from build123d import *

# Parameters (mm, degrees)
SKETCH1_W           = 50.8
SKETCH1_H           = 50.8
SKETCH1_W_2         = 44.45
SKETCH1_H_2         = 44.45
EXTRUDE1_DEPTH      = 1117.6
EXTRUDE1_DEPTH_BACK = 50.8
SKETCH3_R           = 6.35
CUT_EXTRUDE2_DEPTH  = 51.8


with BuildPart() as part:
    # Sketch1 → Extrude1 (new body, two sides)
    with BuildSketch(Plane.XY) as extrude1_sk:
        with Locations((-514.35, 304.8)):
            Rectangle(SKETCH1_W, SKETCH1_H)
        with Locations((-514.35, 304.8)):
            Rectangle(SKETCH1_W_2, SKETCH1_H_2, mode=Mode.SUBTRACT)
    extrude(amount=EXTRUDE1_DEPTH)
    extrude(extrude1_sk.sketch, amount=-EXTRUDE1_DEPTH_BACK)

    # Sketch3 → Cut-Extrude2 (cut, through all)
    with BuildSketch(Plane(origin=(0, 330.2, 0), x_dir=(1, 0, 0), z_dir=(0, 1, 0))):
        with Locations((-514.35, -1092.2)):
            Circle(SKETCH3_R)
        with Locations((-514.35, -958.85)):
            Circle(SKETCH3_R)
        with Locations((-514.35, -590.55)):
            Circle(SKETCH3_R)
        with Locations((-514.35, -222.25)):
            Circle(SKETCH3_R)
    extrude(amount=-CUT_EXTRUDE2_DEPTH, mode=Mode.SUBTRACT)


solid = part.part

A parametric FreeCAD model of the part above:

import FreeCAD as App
import Part
import Sketcher

V = App.Vector
Q = App.Units.Quantity


def add_polygon(sketch, points):
    """Adds a closed chain of lines whose ends are joined by coincident constraints."""
    first, n = sketch.GeometryCount, len(points)
    for a, b in zip(points, points[1:] + points[:1]):
        sketch.addGeometry(Part.LineSegment(App.Vector(*a, 0), App.Vector(*b, 0)), False)
    for i in range(n):
        sketch.addConstraint(Sketcher.Constraint("Coincident", first + i, 2, first + (i + 1) % n, 1))

doc = App.newDocument("Part")
body = doc.addObject("PartDesign::Body", "Body")

# Sketch on XY plane
sketch1 = doc.addObject("Sketcher::SketchObject", "Sketch")
body.addObject(sketch1)
sketch1.AttachmentSupport = (doc.XY_Plane, [""])
sketch1.MapMode = "FlatFace"
add_polygon(sketch1, [(-539.75, 330.2), (-539.75, 279.4), (-488.95, 279.4), (-488.95, 330.2)])  # lines 0-3
add_polygon(sketch1, [(-492.125, 282.575), (-536.575, 282.575), (-536.575, 327.025), (-492.125, 327.025)])  # lines 4-7
sketch1.addConstraint([
    Sketcher.Constraint("Vertical", 0),
    Sketcher.Constraint("Horizontal", 1),
    Sketcher.Constraint("Vertical", 2),
    Sketcher.Constraint("Horizontal", 3),
    Sketcher.Constraint("Horizontal", 4),
    Sketcher.Constraint("Vertical", 5),
    Sketcher.Constraint("Horizontal", 6),
    Sketcher.Constraint("Vertical", 7),
    Sketcher.Constraint("Equal", 3, 0),
    Sketcher.Constraint("Equal", 6, 5),
    Sketcher.Constraint("DistanceX", 1, 1, 1, 2, Q("2 in")),
    Sketcher.Constraint("DistanceY", -1, 1, 0, 2, Q("11 in")),
    Sketcher.Constraint("DistanceX", 4, 2, 4, 1, Q("1.75 in")),
    Sketcher.Constraint("DistanceX", 0, 2, -1, 1, Q("21.25 in")),
    Sketcher.Constraint("DistanceX", 4, 2, -1, 1, Q("21.125 in")),
    Sketcher.Constraint("DistanceY", -1, 1, 4, 2, Q("11.125 in")),
])
pad1 = doc.addObject("PartDesign::Pad", "Pad")
body.addObject(pad1)
pad1.Profile = sketch1
pad1.Type = "TwoLengths"
pad1.Length = Q("44 in")
pad1.Length2 = Q("2 in")

# Sketch on XZ plane
sketch2 = doc.addObject("Sketcher::SketchObject", "Sketch001")
body.addObject(sketch2)
sketch2.AttachmentSupport = (doc.XZ_Plane, [""])
sketch2.MapMode = "FlatFace"
sketch2.AttachmentOffset = App.Placement(V(0, 0, -13 * 25.4), App.Rotation())
sketch2.addGeometry([
    Part.Circle(V(-514.35, 1092.2, 0), V(0, 0, 1), 6.35),
    Part.Circle(V(-514.35, 958.85, 0), V(0, 0, 1), 6.35),
    Part.Circle(V(-514.35, 590.55, 0), V(0, 0, 1), 6.35),
    Part.Circle(V(-514.35, 222.25, 0), V(0, 0, 1), 6.35),
], False)
sketch2.addConstraint([
    Sketcher.Constraint("Equal", 0, 1),
    Sketcher.Constraint("Equal", 1, 2),
    Sketcher.Constraint("Equal", 2, 3),
    Sketcher.Constraint("Vertical", 0, 3, 1, 3),
    Sketcher.Constraint("Vertical", 1, 3, 2, 3),
    Sketcher.Constraint("Vertical", 2, 3, 3, 3),
    Sketcher.Constraint("Diameter", 0, Q("0.5 in")),
    Sketcher.Constraint("DistanceY", -1, 1, 0, 3, Q("43 in")),
    Sketcher.Constraint("DistanceY", 3, 3, 1, 3, Q("29 in")),
    Sketcher.Constraint("DistanceY", 2, 3, 1, 3, Q("14.5 in")),
    Sketcher.Constraint("DistanceX", 0, 3, -1, 1, Q("20.25 in")),
    Sketcher.Constraint("DistanceY", -1, 1, 1, 3, Q("37.75 in")),
])
pocket1 = doc.addObject("PartDesign::Pocket", "Pocket")
body.addObject(pocket1)
pocket1.Profile = sketch2
pocket1.Type = "ThroughAll"
pocket1.Reversed = True

doc.recompute()
